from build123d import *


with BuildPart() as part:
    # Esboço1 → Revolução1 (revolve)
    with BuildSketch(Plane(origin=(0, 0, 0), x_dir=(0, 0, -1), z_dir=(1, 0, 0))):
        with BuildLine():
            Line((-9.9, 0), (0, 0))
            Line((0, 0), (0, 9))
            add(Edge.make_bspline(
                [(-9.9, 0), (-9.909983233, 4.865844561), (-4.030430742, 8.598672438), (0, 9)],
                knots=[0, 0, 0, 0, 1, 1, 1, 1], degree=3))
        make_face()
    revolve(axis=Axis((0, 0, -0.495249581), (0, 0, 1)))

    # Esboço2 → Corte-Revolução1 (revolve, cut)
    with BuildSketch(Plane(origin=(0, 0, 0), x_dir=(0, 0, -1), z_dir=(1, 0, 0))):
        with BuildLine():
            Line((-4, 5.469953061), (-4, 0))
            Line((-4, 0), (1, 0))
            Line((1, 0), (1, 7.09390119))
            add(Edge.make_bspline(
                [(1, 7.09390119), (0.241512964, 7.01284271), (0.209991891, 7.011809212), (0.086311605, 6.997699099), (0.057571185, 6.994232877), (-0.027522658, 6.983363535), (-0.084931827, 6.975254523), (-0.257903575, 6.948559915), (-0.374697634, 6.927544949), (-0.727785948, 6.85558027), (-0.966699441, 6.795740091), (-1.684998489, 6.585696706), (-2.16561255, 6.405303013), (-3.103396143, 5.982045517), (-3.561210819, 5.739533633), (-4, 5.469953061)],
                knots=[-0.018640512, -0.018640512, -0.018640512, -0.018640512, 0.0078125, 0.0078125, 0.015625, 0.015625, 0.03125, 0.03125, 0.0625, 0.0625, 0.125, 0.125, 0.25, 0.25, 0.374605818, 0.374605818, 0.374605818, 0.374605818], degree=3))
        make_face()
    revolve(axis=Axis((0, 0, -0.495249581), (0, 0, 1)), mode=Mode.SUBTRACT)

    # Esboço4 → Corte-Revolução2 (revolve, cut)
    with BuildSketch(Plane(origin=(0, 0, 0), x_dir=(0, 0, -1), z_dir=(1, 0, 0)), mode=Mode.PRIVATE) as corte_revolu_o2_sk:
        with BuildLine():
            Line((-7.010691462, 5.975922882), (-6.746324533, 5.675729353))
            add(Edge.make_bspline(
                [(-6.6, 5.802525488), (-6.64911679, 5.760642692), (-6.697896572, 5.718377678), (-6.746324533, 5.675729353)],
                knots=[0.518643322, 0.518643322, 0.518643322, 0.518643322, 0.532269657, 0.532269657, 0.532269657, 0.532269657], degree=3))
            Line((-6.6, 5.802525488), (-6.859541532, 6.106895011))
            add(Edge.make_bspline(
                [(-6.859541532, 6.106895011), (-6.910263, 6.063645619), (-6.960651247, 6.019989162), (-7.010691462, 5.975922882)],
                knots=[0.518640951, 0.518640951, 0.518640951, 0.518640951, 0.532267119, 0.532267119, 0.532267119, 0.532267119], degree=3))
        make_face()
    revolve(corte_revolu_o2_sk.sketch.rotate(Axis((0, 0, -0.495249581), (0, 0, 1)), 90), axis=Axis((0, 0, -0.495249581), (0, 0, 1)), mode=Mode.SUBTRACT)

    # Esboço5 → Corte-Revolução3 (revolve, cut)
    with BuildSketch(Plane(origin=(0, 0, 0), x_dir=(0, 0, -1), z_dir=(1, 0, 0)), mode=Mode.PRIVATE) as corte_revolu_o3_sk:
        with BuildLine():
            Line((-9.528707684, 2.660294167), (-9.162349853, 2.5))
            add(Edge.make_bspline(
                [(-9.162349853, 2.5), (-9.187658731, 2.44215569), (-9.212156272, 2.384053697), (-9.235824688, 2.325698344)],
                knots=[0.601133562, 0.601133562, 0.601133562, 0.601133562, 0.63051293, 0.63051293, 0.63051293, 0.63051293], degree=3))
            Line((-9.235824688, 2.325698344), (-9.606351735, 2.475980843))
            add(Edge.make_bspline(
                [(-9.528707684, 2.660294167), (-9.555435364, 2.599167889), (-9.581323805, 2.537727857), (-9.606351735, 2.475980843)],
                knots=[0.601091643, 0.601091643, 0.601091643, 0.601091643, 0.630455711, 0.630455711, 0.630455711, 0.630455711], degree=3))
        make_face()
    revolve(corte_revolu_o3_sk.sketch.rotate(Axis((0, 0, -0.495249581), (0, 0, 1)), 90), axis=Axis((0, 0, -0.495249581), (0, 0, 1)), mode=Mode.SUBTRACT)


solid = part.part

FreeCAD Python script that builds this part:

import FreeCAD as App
import Part
import Sketcher

V = App.Vector

doc = App.newDocument("Part")
body = doc.addObject("PartDesign::Body", "Body")

# Sketch on YZ plane
sketch1 = doc.addObject("Sketcher::SketchObject", "Sketch")
body.addObject(sketch1)
sketch1.AttachmentSupport = (doc.YZ_Plane, [""])
sketch1.MapMode = "FlatFace"
sketch1.addGeometry(Part.LineSegment(V(0, 9.9, 0), V(0, 0, 0)), False)
sketch1.addGeometry(Part.LineSegment(V(0, 0, 0), V(9, 0, 0)), False)
sketch1.addGeometry(Part.BSplineCurve([V(0, 9.9, 0), V(4.865845, 9.909983, 0), V(8.598672, 4.030431, 0), V(9, 0, 0)], [4, 4], [0, 1], False, 3, [1, 1, 1, 1], False), False)
sketch1.addConstraint(Sketcher.Constraint("Block", 2))
sketch1.addConstraint(Sketcher.Constraint("Coincident", 0, 2, 1, 1))
sketch1.addConstraint(Sketcher.Constraint("Coincident", 1, 2, 2, 2))
sketch1.addConstraint(Sketcher.Constraint("Coincident", 2, 1, 0, 1))
sketch1.addConstraint(Sketcher.Constraint("Vertical", 0))
sketch1.addConstraint(Sketcher.Constraint("Horizontal", 1))
revolution = doc.addObject("PartDesign::Revolution", "Revolution")
body.addObject(revolution)
revolution.Profile = sketch1
revolution.ReferenceAxis = (sketch1, ["V_Axis"])
revolution.Angle = 360

# Sketch on YZ plane
sketch2 = doc.addObject("Sketcher::SketchObject", "Sketch001")
body.addObject(sketch2)
sketch2.AttachmentSupport = (doc.YZ_Plane, [""])
sketch2.MapMode = "FlatFace"
sketch2.addGeometry(Part.LineSegment(V(5.469953, 4, 0), V(0, 4, 0)), False)
sketch2.addGeometry(Part.LineSegment(V(0, 4, 0), V(0, -1, 0)), False)
sketch2.addGeometry(Part.LineSegment(V(0, -1, 0), V(7.093901, -1, 0)), False)
sketch2.addGeometry(Part.BSplineCurve([V(7.093901, -1, 0), V(7.012843, -0.241513, 0), V(7.011809, -0.209992, 0), V(6.997699, -0.086312, 0), V(6.994233, -0.057571, 0), V(6.983364, 0.027523, 0), V(6.975255, 0.084932, 0), V(6.94856, 0.257904, 0), V(6.927545, 0.374698, 0), V(6.85558, 0.727786, 0), V(6.79574, 0.966699, 0), V(6.585697, 1.684998, 0), V(6.405303, 2.165613, 0), V(5.982046, 3.103396, 0), V(5.739534, 3.561211, 0), V(5.469953, 4, 0)], [4, 2, 2, 2, 2, 2, 2, 4], [-0.018640512, 0.0078125, 0.015625, 0.03125, 0.0625, 0.125, 0.25, 0.374605818], False, 3, [1, 1, 1, 1, 1, 1, 1, 1, 1, 1, 1, 1, 1, 1, 1, 1], False), False)
sketch2.addConstraint(Sketcher.Constraint("Block", 3))
sketch2.addConstraint(Sketcher.Constraint("Coincident", 0, 2, 1, 1))
sketch2.addConstraint(Sketcher.Constraint("Coincident", 1, 2, 2, 1))
sketch2.addConstraint(Sketcher.Constraint("Coincident", 2, 2, 3, 1))
sketch2.addConstraint(Sketcher.Constraint("Coincident", 3, 2, 0, 1))
sketch2.addConstraint(Sketcher.Constraint("Horizontal", 0))
sketch2.addConstraint(Sketcher.Constraint("Vertical", 1))
sketch2.addConstraint(Sketcher.Constraint("Horizontal", 2))
sketch2.addConstraint(Sketcher.Constraint("PointOnObject", 0, 2, -2))
groove = doc.addObject("PartDesign::Groove", "Groove")
body.addObject(groove)
groove.Profile = sketch2
groove.ReferenceAxis = (sketch2, ["V_Axis"])
groove.Angle = 360

# Sketch on YZ plane
sketch3 = doc.addObject("Sketcher::SketchObject", "Sketch002")
body.addObject(sketch3)
sketch3.AttachmentSupport = (doc.YZ_Plane, [""])
sketch3.MapMode = "FlatFace"
sketch3.addGeometry(Part.LineSegment(V(5.975923, 7.010691, 0), V(5.675729, 6.746325, 0)), False)
sketch3.addGeometry(Part.BSplineCurve([V(5.802525, 6.6, 0), V(5.760643, 6.649117, 0), V(5.718378, 6.697897, 0), V(5.675729, 6.746325, 0)], [4, 4], [0.518643322, 0.532269657], False, 3, [1, 1, 1, 1], False), False)
sketch3.addGeometry(Part.LineSegment(V(5.802525, 6.6, 0), V(6.106895, 6.859542, 0)), False)
sketch3.addGeometry(Part.BSplineCurve([V(6.106895, 6.859542, 0), V(6.063646, 6.910263, 0), V(6.019989, 6.960651, 0), V(5.975923, 7.010691, 0)], [4, 4], [0.518640951, 0.532267119], False, 3, [1, 1, 1, 1], False), False)
sketch3.addConstraint(Sketcher.Constraint("Block", 1))
sketch3.addConstraint(Sketcher.Constraint("Block", 3))
sketch3.addConstraint(Sketcher.Constraint("Coincident", 0, 2, 1, 2))
sketch3.addConstraint(Sketcher.Constraint("Coincident", 1, 1, 2, 1))
sketch3.addConstraint(Sketcher.Constraint("Coincident", 2, 2, 3, 1))
sketch3.addConstraint(Sketcher.Constraint("Coincident", 3, 2, 0, 1))
groove2 = doc.addObject("PartDesign::Groove", "Groove001")
body.addObject(groove2)
groove2.Profile = sketch3
groove2.ReferenceAxis = (sketch3, ["V_Axis"])
groove2.Angle = 360

# Sketch on YZ plane
sketch4 = doc.addObject("Sketcher::SketchObject", "Sketch003")
body.addObject(sketch4)
sketch4.AttachmentSupport = (doc.YZ_Plane, [""])
sketch4.MapMode = "FlatFace"
sketch4.addGeometry(Part.LineSegment(V(2.5, 9.16235, 0), V(2.660294, 9.528708, 0)), False)
sketch4.addGeometry(Part.BSplineCurve([V(2.660294, 9.528708, 0), V(2.599168, 9.555435, 0), V(2.537728, 9.581324, 0), V(2.475981, 9.606352, 0)], [4, 4], [0.601091643, 0.630455711], False, 3, [1, 1, 1, 1], False), False)
sketch4.addGeometry(Part.LineSegment(V(2.475981, 9.606352, 0), V(2.325698, 9.235825, 0)), False)
sketch4.addGeometry(Part.BSplineCurve([V(2.5, 9.16235, 0), V(2.442156, 9.187659, 0), V(2.384054, 9.212156, 0), V(2.325698, 9.235825, 0)], [4, 4], [0.601133562, 0.63051293], False, 3, [1, 1, 1, 1], False), False)
sketch4.addConstraint(Sketcher.Constraint("Block", 1))
sketch4.addConstraint(Sketcher.Constraint("Block", 3))
sketch4.addConstraint(Sketcher.Constraint("Coincident", 0, 2, 1, 1))
sketch4.addConstraint(Sketcher.Constraint("Coincident", 1, 2, 2, 1))
sketch4.addConstraint(Sketcher.Constraint("Coincident", 2, 2, 3, 2))
sketch4.addConstraint(Sketcher.Constraint("Coincident", 3, 1, 0, 1))
groove3 = doc.addObject("PartDesign::Groove", "Groove002")
body.addObject(groove3)
groove3.Profile = sketch4
groove3.ReferenceAxis = (sketch4, ["V_Axis"])
groove3.Angle = 360

doc.recompute()
